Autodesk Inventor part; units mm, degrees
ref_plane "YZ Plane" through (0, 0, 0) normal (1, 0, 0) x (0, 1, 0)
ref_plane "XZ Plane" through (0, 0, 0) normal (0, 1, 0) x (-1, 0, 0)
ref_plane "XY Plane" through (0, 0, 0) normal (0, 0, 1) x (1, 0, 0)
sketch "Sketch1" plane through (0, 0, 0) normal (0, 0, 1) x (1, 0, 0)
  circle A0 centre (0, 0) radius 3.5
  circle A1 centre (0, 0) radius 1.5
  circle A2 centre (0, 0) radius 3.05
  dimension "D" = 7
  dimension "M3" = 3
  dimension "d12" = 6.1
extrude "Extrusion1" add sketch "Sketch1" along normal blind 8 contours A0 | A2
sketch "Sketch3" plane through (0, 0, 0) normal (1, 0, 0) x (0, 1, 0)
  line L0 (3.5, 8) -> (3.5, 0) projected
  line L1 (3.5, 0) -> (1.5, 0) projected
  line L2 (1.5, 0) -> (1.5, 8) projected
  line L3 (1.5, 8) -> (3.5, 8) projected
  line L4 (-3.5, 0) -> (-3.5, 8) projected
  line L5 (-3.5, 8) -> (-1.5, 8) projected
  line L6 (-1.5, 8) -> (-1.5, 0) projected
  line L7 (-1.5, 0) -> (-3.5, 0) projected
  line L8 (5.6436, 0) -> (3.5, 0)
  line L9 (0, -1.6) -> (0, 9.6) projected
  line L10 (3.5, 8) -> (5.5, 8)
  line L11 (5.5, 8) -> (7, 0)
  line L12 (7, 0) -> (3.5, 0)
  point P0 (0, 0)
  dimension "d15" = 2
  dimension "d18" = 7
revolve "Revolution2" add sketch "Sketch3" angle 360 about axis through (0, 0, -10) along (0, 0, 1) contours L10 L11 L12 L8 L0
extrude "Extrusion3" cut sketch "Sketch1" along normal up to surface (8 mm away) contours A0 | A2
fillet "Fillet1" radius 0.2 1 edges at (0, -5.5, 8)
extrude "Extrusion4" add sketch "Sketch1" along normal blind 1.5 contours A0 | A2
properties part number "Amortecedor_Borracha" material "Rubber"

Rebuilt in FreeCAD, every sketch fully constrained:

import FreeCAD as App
import Part
import Sketcher

V = App.Vector
Q = App.Units.Quantity


def edges_at(feature, points):
    """Names of the edges that pass closest to the given points."""
    edges = feature.Shape.Edges
    near = lambda p: min(range(len(edges)), key=lambda i: edges[i].distToShape(Part.Vertex(*p))[0])
    return sorted({f"Edge{near(p) + 1}" for p in points})


def add_polygon(sketch, points):
    """Adds a closed chain of lines whose ends are joined by coincident constraints."""
    first, n = sketch.GeometryCount, len(points)
    for a, b in zip(points, points[1:] + points[:1]):
        sketch.addGeometry(Part.LineSegment(App.Vector(*a, 0), App.Vector(*b, 0)), False)
    for i in range(n):
        sketch.addConstraint(Sketcher.Constraint("Coincident", first + i, 2, first + (i + 1) % n, 1))

doc = App.newDocument("Part")
body = doc.addObject("PartDesign::Body", "Body")

# Sketch on XY plane
sketch1 = body.newObject("Sketcher::SketchObject", "Sketch")
sketch1.AttachmentSupport = (doc.getObject("XY_Plane"), [""])
sketch1.MapMode = "FlatFace"
sketch1.addGeometry(Part.Circle(V(0, 0, 0), V(0, 0, 1), 3.5), False)
sketch1.addGeometry(Part.Circle(V(0, 0, 0), V(0, 0, 1), 1.5), False)
sketch1.addConstraint(Sketcher.Constraint("Coincident", 0, 3, -1, 1))
sketch1.addConstraint(Sketcher.Constraint("Coincident", 1, 3, -1, 1))
sketch1.addConstraint(Sketcher.Constraint("Diameter", 0, Q("7 mm")))
sketch1.addConstraint(Sketcher.Constraint("Diameter", 1, Q("3 mm")))
pad1 = body.newObject("PartDesign::Pad", "Pad")
pad1.Profile = sketch1
pad1.Length = 8

# Sketch on YZ plane
sketch2 = body.newObject("Sketcher::SketchObject", "Sketch001")
sketch2.AttachmentSupport = (doc.getObject("YZ_Plane"), [""])
sketch2.MapMode = "FlatFace"
add_polygon(sketch2, [(5.5, 8), (3.5, 8), (3.5, 0), (7, 0)])  # lines 0-3
sketch2.addConstraint(Sketcher.Constraint("Horizontal", 0))
sketch2.addConstraint(Sketcher.Constraint("Vertical", 1))
sketch2.addConstraint(Sketcher.Constraint("Horizontal", 2))
sketch2.addConstraint(Sketcher.Constraint("PointOnObject", 1, 2, -1))
sketch2.addConstraint(Sketcher.Constraint("DistanceX", 0, 2, 0, 1, Q("2 mm")))
sketch2.addConstraint(Sketcher.Constraint("DistanceX", -1, 1, 2, 2, Q("7 mm")))
sketch2.addConstraint(Sketcher.Constraint("DistanceY", 1, 2, 1, 1, Q("8 mm")))
sketch2.addConstraint(Sketcher.Constraint("DistanceX", 2, 1, 2, 2, Q("3.5 mm")))
revolution = body.newObject("PartDesign::Revolution", "Revolution")
revolution.Profile = sketch2
revolution.ReferenceAxis = (sketch2, ["V_Axis"])
revolution.Angle = 360

# Sketch on XY plane
sketch3 = body.newObject("Sketcher::SketchObject", "Sketch002")
sketch3.AttachmentSupport = (doc.getObject("XY_Plane"), [""])
sketch3.MapMode = "FlatFace"
sketch3.addGeometry(Part.Circle(V(0, 0, 0), V(0, 0, 1), 3.5), False)
sketch3.addGeometry(Part.Circle(V(0, 0, 0), V(0, 0, 1), 1.5), False)
sketch3.addConstraint(Sketcher.Constraint("Coincident", 0, 3, -1, 1))
sketch3.addConstraint(Sketcher.Constraint("Coincident", 1, 3, -1, 1))
sketch3.addConstraint(Sketcher.Constraint("Diameter", 0, Q("7 mm")))
sketch3.addConstraint(Sketcher.Constraint("Diameter", 1, Q("3 mm")))
pocket1 = body.newObject("PartDesign::Pocket", "Pocket")
pocket1.Profile = sketch3
pocket1.Length = 8
pocket1.Reversed = True
doc.recompute()

fillet = body.newObject("PartDesign::Fillet", "Fillet")
fillet.Base = (pocket1, edges_at(pocket1, [(0, -5.5, 8)]))
fillet.Radius = 0.2

# Sketch on XY plane
sketch4 = body.newObject("Sketcher::SketchObject", "Sketch003")
sketch4.AttachmentSupport = (doc.getObject("XY_Plane"), [""])
sketch4.MapMode = "FlatFace"
sketch4.addGeometry(Part.Circle(V(0, 0, 0), V(0, 0, 1), 3.5), False)
sketch4.addGeometry(Part.Circle(V(0, 0, 0), V(0, 0, 1), 1.5), False)
sketch4.addConstraint(Sketcher.Constraint("Coincident", 0, 3, -1, 1))
sketch4.addConstraint(Sketcher.Constraint("Coincident", 1, 3, -1, 1))
sketch4.addConstraint(Sketcher.Constraint("Diameter", 0, Q("7 mm")))
sketch4.addConstraint(Sketcher.Constraint("Diameter", 1, Q("3 mm")))
pad2 = body.newObject("PartDesign::Pad", "Pad001")
pad2.Profile = sketch4
pad2.Length = 1.5

doc.recompute()
